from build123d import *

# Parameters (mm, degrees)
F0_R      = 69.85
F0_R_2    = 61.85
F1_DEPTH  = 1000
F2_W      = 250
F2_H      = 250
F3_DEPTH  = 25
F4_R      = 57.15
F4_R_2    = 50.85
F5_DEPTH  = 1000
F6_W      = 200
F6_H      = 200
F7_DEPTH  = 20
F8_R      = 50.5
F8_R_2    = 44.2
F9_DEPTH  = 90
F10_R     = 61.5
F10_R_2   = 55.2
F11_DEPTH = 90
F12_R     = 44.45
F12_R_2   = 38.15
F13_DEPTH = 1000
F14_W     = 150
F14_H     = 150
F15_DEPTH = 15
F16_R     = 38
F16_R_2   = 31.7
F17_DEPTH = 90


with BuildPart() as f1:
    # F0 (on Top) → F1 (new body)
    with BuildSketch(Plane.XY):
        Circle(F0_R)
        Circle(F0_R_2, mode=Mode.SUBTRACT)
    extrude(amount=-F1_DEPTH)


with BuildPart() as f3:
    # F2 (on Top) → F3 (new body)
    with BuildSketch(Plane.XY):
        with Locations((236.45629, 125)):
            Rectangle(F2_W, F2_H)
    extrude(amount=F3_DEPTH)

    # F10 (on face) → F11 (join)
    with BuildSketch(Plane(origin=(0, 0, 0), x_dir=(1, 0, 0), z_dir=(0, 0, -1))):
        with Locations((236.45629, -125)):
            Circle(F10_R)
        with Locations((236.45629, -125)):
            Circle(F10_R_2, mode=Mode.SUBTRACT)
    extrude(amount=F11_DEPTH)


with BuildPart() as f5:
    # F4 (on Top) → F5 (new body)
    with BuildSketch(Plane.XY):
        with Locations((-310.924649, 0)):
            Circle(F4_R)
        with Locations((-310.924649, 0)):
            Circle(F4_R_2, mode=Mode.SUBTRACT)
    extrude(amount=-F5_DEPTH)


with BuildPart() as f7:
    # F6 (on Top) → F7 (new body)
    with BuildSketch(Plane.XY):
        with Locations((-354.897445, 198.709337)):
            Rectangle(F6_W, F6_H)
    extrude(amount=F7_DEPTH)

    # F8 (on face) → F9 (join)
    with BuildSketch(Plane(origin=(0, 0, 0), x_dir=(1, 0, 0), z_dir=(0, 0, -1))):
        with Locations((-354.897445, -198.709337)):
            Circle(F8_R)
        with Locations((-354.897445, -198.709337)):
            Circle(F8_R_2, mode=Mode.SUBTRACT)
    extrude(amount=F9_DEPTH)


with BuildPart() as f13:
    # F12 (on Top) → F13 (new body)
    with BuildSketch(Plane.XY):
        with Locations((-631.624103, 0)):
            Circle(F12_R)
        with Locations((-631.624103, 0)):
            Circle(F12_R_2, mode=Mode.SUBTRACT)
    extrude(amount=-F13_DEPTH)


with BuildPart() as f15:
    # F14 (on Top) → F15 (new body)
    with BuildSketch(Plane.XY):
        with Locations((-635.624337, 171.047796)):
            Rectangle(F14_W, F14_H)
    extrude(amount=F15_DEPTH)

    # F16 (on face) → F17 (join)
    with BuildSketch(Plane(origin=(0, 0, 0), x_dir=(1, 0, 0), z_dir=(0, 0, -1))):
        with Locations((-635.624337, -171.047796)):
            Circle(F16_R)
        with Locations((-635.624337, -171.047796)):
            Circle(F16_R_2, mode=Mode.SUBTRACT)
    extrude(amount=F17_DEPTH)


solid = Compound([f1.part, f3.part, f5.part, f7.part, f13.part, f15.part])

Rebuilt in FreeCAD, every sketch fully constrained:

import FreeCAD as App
import Part
import Sketcher

V = App.Vector
Q = App.Units.Quantity

doc = App.newDocument("Part")
body = doc.addObject("PartDesign::Body", "Body")

sketch1 = body.newObject("Sketcher::SketchObject", "Sketch")
sketch1.AttachmentSupport = (doc.getObject("XY_Plane"), [""])
sketch1.MapMode = "FlatFace"
sketch1.addGeometry(Part.Circle(V(0, 0, 0), V(0, 0, 1), 69.85), False)
sketch1.addGeometry(Part.Circle(V(0, 0, 0), V(0, 0, 1), 61.85), False)
sketch1.addConstraint(Sketcher.Constraint("Coincident", 0, 3, -1, 1))
sketch1.addConstraint(Sketcher.Constraint("Coincident", 1, 3, -1, 1))
sketch1.addConstraint(Sketcher.Constraint("Diameter", 0, Q("139.7 mm")))
sketch1.addConstraint(Sketcher.Constraint("Diameter", 1, Q("123.7 mm")))
pad1 = body.newObject("PartDesign::Pad", "Pad")
pad1.Profile = sketch1
pad1.Length = 1000
pad1.Reversed = True
body2 = doc.addObject("PartDesign::Body", "Body001")

sketch2 = body2.newObject("Sketcher::SketchObject", "Sketch001")
sketch2.AttachmentSupport = (doc.getObject("XY_Plane001"), [""])
sketch2.MapMode = "FlatFace"
sketch2.addGeometry(Part.LineSegment(V(111.45629, 250, 0), V(111.45629, 0, 0)), False)
sketch2.addGeometry(Part.LineSegment(V(111.45629, 0, 0), V(361.45629, 0, 0)), False)
sketch2.addGeometry(Part.LineSegment(V(361.45629, 0, 0), V(361.45629, 250, 0)), False)
sketch2.addGeometry(Part.LineSegment(V(361.45629, 250, 0), V(111.45629, 250, 0)), False)
sketch2.addConstraint(Sketcher.Constraint("Coincident", 0, 2, 1, 1))
sketch2.addConstraint(Sketcher.Constraint("Coincident", 1, 2, 2, 1))
sketch2.addConstraint(Sketcher.Constraint("Coincident", 2, 2, 3, 1))
sketch2.addConstraint(Sketcher.Constraint("Coincident", 3, 2, 0, 1))
sketch2.addConstraint(Sketcher.Constraint("Vertical", 0))
sketch2.addConstraint(Sketcher.Constraint("Horizontal", 1))
sketch2.addConstraint(Sketcher.Constraint("Vertical", 2))
sketch2.addConstraint(Sketcher.Constraint("Horizontal", 3))
sketch2.addConstraint(Sketcher.Constraint("PointOnObject", 0, 2, -1))
sketch2.addConstraint(Sketcher.Constraint("Equal", 3, 0))
sketch2.addConstraint(Sketcher.Constraint("DistanceX", 1, 1, 1, 2, Q("250 mm")))
sketch2.addConstraint(Sketcher.Constraint("DistanceX", -1, 1, 0, 2, Q("111.45629 mm")))
pad2 = body2.newObject("PartDesign::Pad", "Pad001")
pad2.Profile = sketch2
pad2.Length = 25

sketch3 = body2.newObject("Sketcher::SketchObject", "Sketch002")
sketch3.AttachmentSupport = (doc.getObject("XY_Plane001"), [""])
sketch3.MapMode = "FlatFace"
sketch3.addGeometry(Part.Circle(V(236.45629, 125, 0), V(0, 0, 1), 61.5), False)
sketch3.addGeometry(Part.Circle(V(236.45629, 125, 0), V(0, 0, 1), 55.2), False)
sketch3.addConstraint(Sketcher.Constraint("Coincident", 1, 3, 0, 3))
sketch3.addConstraint(Sketcher.Constraint("Diameter", 0, Q("123 mm")))
sketch3.addConstraint(Sketcher.Constraint("Diameter", 1, Q("110.4 mm")))
sketch3.addConstraint(Sketcher.Constraint("DistanceY", -1, 1, 0, 3, Q("125 mm")))
sketch3.addConstraint(Sketcher.Constraint("DistanceX", -1, 1, 0, 3, Q("236.45629 mm")))
pad3 = body2.newObject("PartDesign::Pad", "Pad002")
pad3.Profile = sketch3
pad3.Length = 90
pad3.Reversed = True
body3 = doc.addObject("PartDesign::Body", "Body002")

sketch4 = body3.newObject("Sketcher::SketchObject", "Sketch003")
sketch4.AttachmentSupport = (doc.getObject("XY_Plane002"), [""])
sketch4.MapMode = "FlatFace"
sketch4.addGeometry(Part.Circle(V(-310.924649, 0, 0), V(0, 0, 1), 57.15), False)
sketch4.addGeometry(Part.Circle(V(-310.924649, 0, 0), V(0, 0, 1), 50.85), False)
sketch4.addConstraint(Sketcher.Constraint("Coincident", 1, 3, 0, 3))
sketch4.addConstraint(Sketcher.Constraint("PointOnObject", 0, 3, -1))
sketch4.addConstraint(Sketcher.Constraint("Diameter", 0, Q("114.3 mm")))
sketch4.addConstraint(Sketcher.Constraint("Diameter", 1, Q("101.7 mm")))
sketch4.addConstraint(Sketcher.Constraint("DistanceX", 0, 3, -1, 1, Q("310.924649 mm")))
pad4 = body3.newObject("PartDesign::Pad", "Pad003")
pad4.Profile = sketch4
pad4.Length = 1000
pad4.Reversed = True
body4 = doc.addObject("PartDesign::Body", "Body003")

sketch5 = body4.newObject("Sketcher::SketchObject", "Sketch004")
sketch5.AttachmentSupport = (doc.getObject("XY_Plane003"), [""])
sketch5.MapMode = "FlatFace"
sketch5.addGeometry(Part.LineSegment(V(-454.897445, 298.709337, 0), V(-454.897445, 98.709337, 0)), False)
sketch5.addGeometry(Part.LineSegment(V(-454.897445, 98.709337, 0), V(-254.897445, 98.709337, 0)), False)
sketch5.addGeometry(Part.LineSegment(V(-254.897445, 98.709337, 0), V(-254.897445, 298.709337, 0)), False)
sketch5.addGeometry(Part.LineSegment(V(-254.897445, 298.709337, 0), V(-454.897445, 298.709337, 0)), False)
sketch5.addConstraint(Sketcher.Constraint("Coincident", 0, 2, 1, 1))
sketch5.addConstraint(Sketcher.Constraint("Coincident", 1, 2, 2, 1))
sketch5.addConstraint(Sketcher.Constraint("Coincident", 2, 2, 3, 1))
sketch5.addConstraint(Sketcher.Constraint("Coincident", 3, 2, 0, 1))
sketch5.addConstraint(Sketcher.Constraint("Vertical", 0))
sketch5.addConstraint(Sketcher.Constraint("Horizontal", 1))
sketch5.addConstraint(Sketcher.Constraint("Vertical", 2))
sketch5.addConstraint(Sketcher.Constraint("Horizontal", 3))
sketch5.addConstraint(Sketcher.Constraint("Equal", 3, 0))
sketch5.addConstraint(Sketcher.Constraint("DistanceX", 1, 1, 1, 2, Q("200 mm")))
sketch5.addConstraint(Sketcher.Constraint("DistanceX", 0, 2, -1, 1, Q("454.897445 mm")))
sketch5.addConstraint(Sketcher.Constraint("DistanceY", -1, 1, 0, 2, Q("98.709337 mm")))
pad5 = body4.newObject("PartDesign::Pad", "Pad004")
pad5.Profile = sketch5
pad5.Length = 20

sketch6 = body4.newObject("Sketcher::SketchObject", "Sketch005")
sketch6.AttachmentSupport = (doc.getObject("XY_Plane003"), [""])
sketch6.MapMode = "FlatFace"
sketch6.addGeometry(Part.Circle(V(-354.897445, 198.709337, 0), V(0, 0, 1), 50.5), False)
sketch6.addGeometry(Part.Circle(V(-354.897445, 198.709337, 0), V(0, 0, 1), 44.2), False)
sketch6.addConstraint(Sketcher.Constraint("Coincident", 1, 3, 0, 3))
sketch6.addConstraint(Sketcher.Constraint("Diameter", 0, Q("101 mm")))
sketch6.addConstraint(Sketcher.Constraint("Diameter", 1, Q("88.4 mm")))
sketch6.addConstraint(Sketcher.Constraint("DistanceX", 0, 3, -1, 1, Q("354.897445 mm")))
sketch6.addConstraint(Sketcher.Constraint("DistanceY", -1, 1, 0, 3, Q("198.709337 mm")))
pad6 = body4.newObject("PartDesign::Pad", "Pad005")
pad6.Profile = sketch6
pad6.Length = 90
pad6.Reversed = True
body5 = doc.addObject("PartDesign::Body", "Body004")

sketch7 = body5.newObject("Sketcher::SketchObject", "Sketch006")
sketch7.AttachmentSupport = (doc.getObject("XY_Plane004"), [""])
sketch7.MapMode = "FlatFace"
sketch7.addGeometry(Part.Circle(V(-631.624103, 0, 0), V(0, 0, 1), 44.45), False)
sketch7.addGeometry(Part.Circle(V(-631.624103, 0, 0), V(0, 0, 1), 38.15), False)
sketch7.addConstraint(Sketcher.Constraint("Coincident", 1, 3, 0, 3))
sketch7.addConstraint(Sketcher.Constraint("PointOnObject", 0, 3, -1))
sketch7.addConstraint(Sketcher.Constraint("Diameter", 0, Q("88.9 mm")))
sketch7.addConstraint(Sketcher.Constraint("Diameter", 1, Q("76.3 mm")))
sketch7.addConstraint(Sketcher.Constraint("DistanceX", 0, 3, -1, 1, Q("631.624103 mm")))
pad7 = body5.newObject("PartDesign::Pad", "Pad006")
pad7.Profile = sketch7
pad7.Length = 1000
pad7.Reversed = True
body6 = doc.addObject("PartDesign::Body", "Body005")

sketch8 = body6.newObject("Sketcher::SketchObject", "Sketch007")
sketch8.AttachmentSupport = (doc.getObject("XY_Plane005"), [""])
sketch8.MapMode = "FlatFace"
sketch8.addGeometry(Part.LineSegment(V(-710.624337, 246.047796, 0), V(-710.624337, 96.047796, 0)), False)
sketch8.addGeometry(Part.LineSegment(V(-710.624337, 96.047796, 0), V(-560.624337, 96.047796, 0)), False)
sketch8.addGeometry(Part.LineSegment(V(-560.624337, 96.047796, 0), V(-560.624337, 246.047796, 0)), False)
sketch8.addGeometry(Part.LineSegment(V(-560.624337, 246.047796, 0), V(-710.624337, 246.047796, 0)), False)
sketch8.addConstraint(Sketcher.Constraint("Coincident", 0, 2, 1, 1))
sketch8.addConstraint(Sketcher.Constraint("Coincident", 1, 2, 2, 1))
sketch8.addConstraint(Sketcher.Constraint("Coincident", 2, 2, 3, 1))
sketch8.addConstraint(Sketcher.Constraint("Coincident", 3, 2, 0, 1))
sketch8.addConstraint(Sketcher.Constraint("Vertical", 0))
sketch8.addConstraint(Sketcher.Constraint("Horizontal", 1))
sketch8.addConstraint(Sketcher.Constraint("Vertical", 2))
sketch8.addConstraint(Sketcher.Constraint("Horizontal", 3))
sketch8.addConstraint(Sketcher.Constraint("Equal", 3, 0))
sketch8.addConstraint(Sketcher.Constraint("DistanceX", 1, 1, 1, 2, Q("150 mm")))
sketch8.addConstraint(Sketcher.Constraint("DistanceX", 0, 2, -1, 1, Q("710.624337 mm")))
sketch8.addConstraint(Sketcher.Constraint("DistanceY", -1, 1, 0, 2, Q("96.047796 mm")))
pad8 = body6.newObject("PartDesign::Pad", "Pad007")
pad8.Profile = sketch8
pad8.Length = 15

sketch9 = body6.newObject("Sketcher::SketchObject", "Sketch008")
sketch9.AttachmentSupport = (doc.getObject("XY_Plane005"), [""])
sketch9.MapMode = "FlatFace"
sketch9.addGeometry(Part.Circle(V(-635.624337, 171.047796, 0), V(0, 0, 1), 38), False)
sketch9.addGeometry(Part.Circle(V(-635.624337, 171.047796, 0), V(0, 0, 1), 31.7), False)
sketch9.addConstraint(Sketcher.Constraint("Coincident", 1, 3, 0, 3))
sketch9.addConstraint(Sketcher.Constraint("Diameter", 0, Q("76 mm")))
sketch9.addConstraint(Sketcher.Constraint("Diameter", 1, Q("63.4 mm")))
sketch9.addConstraint(Sketcher.Constraint("DistanceX", 0, 3, -1, 1, Q("635.624337 mm")))
sketch9.addConstraint(Sketcher.Constraint("DistanceY", -1, 1, 0, 3, Q("171.047796 mm")))
pad9 = body6.newObject("PartDesign::Pad", "Pad008")
pad9.Profile = sketch9
pad9.Length = 90
pad9.Reversed = True

doc.recompute()
